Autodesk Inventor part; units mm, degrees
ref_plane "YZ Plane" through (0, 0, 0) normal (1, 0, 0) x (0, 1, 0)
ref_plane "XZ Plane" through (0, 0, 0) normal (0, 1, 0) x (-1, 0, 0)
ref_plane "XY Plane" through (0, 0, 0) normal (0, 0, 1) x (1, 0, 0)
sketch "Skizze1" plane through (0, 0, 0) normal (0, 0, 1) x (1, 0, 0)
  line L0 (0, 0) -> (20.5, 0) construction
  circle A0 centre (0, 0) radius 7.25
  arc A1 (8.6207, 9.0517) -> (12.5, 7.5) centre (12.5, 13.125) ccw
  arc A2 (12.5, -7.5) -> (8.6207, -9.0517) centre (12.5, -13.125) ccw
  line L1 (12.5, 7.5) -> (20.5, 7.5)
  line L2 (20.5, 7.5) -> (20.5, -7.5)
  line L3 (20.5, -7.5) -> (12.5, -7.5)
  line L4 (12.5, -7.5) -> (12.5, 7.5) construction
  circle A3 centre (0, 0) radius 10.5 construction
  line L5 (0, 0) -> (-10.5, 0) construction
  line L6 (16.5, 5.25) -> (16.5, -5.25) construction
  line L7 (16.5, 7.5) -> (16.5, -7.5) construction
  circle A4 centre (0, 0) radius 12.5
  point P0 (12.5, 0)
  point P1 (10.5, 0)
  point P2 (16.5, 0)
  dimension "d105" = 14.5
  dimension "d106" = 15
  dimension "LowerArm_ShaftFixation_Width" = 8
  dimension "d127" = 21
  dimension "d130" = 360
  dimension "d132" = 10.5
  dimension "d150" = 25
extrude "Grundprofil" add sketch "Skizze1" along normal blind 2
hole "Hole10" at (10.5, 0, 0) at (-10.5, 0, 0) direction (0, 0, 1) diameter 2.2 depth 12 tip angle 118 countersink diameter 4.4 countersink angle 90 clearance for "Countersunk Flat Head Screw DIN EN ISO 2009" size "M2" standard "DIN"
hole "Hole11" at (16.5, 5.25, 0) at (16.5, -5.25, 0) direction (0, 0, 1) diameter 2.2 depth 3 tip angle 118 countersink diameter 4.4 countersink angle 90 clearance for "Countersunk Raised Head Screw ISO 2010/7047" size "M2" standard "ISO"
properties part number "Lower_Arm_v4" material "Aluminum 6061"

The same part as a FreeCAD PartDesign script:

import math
import FreeCAD as App
import Part
import Sketcher
from FreeCAD import Vector

doc = App.newDocument("Part")
body = doc.addObject("PartDesign::Body", "Body")

sketch1 = body.newObject("Sketcher::SketchObject", "Sketch")
sketch1.AttachmentSupport = (doc.getObject("XY_Plane"), [""])
sketch1.MapMode = "FlatFace"
sketch1.addGeometry([
    Part.ArcOfCircle(Part.Circle(Vector(12.5, 13.125, 0), Vector(0, 0, 1), 5.62501), math.radians(-133.602573), math.radians(-90)),
    Part.ArcOfCircle(Part.Circle(Vector(0, 0, 0), Vector(0, 0, 1), 12.5), math.radians(46.39707), math.radians(313.60293)),
    Part.ArcOfCircle(Part.Circle(Vector(12.5, -13.125, 0), Vector(0, 0, 1), 5.625), math.radians(90), math.radians(133.602573)),
    Part.LineSegment(Vector(12.5, -7.5, 0), Vector(20.5, -7.5, 0)),
    Part.LineSegment(Vector(20.5, -7.5, 0), Vector(20.5, 7.5, 0)),
    Part.LineSegment(Vector(20.5, 7.5, 0), Vector(12.5, 7.5, 0)),
    Part.Circle(Vector(0, 0, 0), Vector(0, 0, 1), 7.25),
], False)
sketch1.addConstraint([
    Sketcher.Constraint("Tangent", 0, 1, 1, 1),
    Sketcher.Constraint("Tangent", 1, 2, 2, 2),
    Sketcher.Constraint("Tangent", 2, 1, 3, 1),
    Sketcher.Constraint("Coincident", 3, 2, 4, 1),
    Sketcher.Constraint("Coincident", 4, 2, 5, 1),
    Sketcher.Constraint("Tangent", 5, 2, 0, 2),
    Sketcher.Constraint("Horizontal", 3),
    Sketcher.Constraint("Vertical", 4),
    Sketcher.Constraint("Horizontal", 5),
    Sketcher.Constraint("Coincident", 1, 3, -1, 1),
    Sketcher.Constraint("Coincident", 6, 3, -1, 1),
    Sketcher.Constraint("Equal", 0, 2),
    Sketcher.Constraint("Vertical", 0, 3, 2, 3),
    Sketcher.Constraint("Diameter", 6, 14.5),
    Sketcher.Constraint("Radius", 1, 12.5),
    Sketcher.Constraint("DistanceX", 3, 1, 3, 2, 8.0),
    Sketcher.Constraint("DistanceY", 4, 1, 4, 2, 15.0),
    Sketcher.Constraint("Radius", 0, 5.625),
])
pad1 = body.newObject("PartDesign::Pad", "Pad")
pad1.Profile = sketch1
pad1.Length = 2

sketch2 = body.newObject("Sketcher::SketchObject", "Sketch001")
sketch2.AttachmentSupport = (doc.getObject("XY_Plane"), [""])
sketch2.MapMode = "FlatFace"
sketch2.addGeometry([
    Part.Circle(Vector(10.5, 0, 0), Vector(0, 0, 1), 1.1),
    Part.Circle(Vector(-10.5, 0, 0), Vector(0, 0, 1), 1.1),
], False)
sketch2.addConstraint([
    Sketcher.Constraint("Equal", 0, 1),
    Sketcher.Constraint("Symmetric", 0, 3, 1, 3, -1, 1),
    Sketcher.Constraint("PointOnObject", 0, 3, -1),
    Sketcher.Constraint("Diameter", 0, 2.2),
    Sketcher.Constraint("DistanceX", 1, 3, 0, 3, 21.0),
])
doc.recompute()
hole = body.newObject("PartDesign::Hole", "Hole")
hole.Profile = sketch2
hole.ThreadType = "None"
hole.Diameter = 2.2
hole.DepthType = "Dimension"
hole.Depth = 12
hole.DrillPoint = "Angled"
hole.DrillPointAngle = 118
hole.HoleCutType = "Countersink"
hole.HoleCutDiameter = 4.4
hole.HoleCutCountersinkAngle = 90
hole.Reversed = True

sketch3 = body.newObject("Sketcher::SketchObject", "Sketch002")
sketch3.AttachmentSupport = (doc.getObject("XY_Plane"), [""])
sketch3.MapMode = "FlatFace"
sketch3.addGeometry([
    Part.Circle(Vector(16.5, 5.25, 0), Vector(0, 0, 1), 1.1),
    Part.Circle(Vector(16.5, -5.25, 0), Vector(0, 0, 1), 1.1),
], False)
sketch3.addConstraint([
    Sketcher.Constraint("Equal", 0, 1),
    Sketcher.Constraint("Symmetric", 0, 3, 1, 3, -1),
    Sketcher.Constraint("Diameter", 0, 2.2),
    Sketcher.Constraint("DistanceX", -1, 1, 0, 3, 16.5),
    Sketcher.Constraint("DistanceY", 1, 3, 0, 3, 10.5),
])
doc.recompute()
hole2 = body.newObject("PartDesign::Hole", "Hole001")
hole2.Profile = sketch3
hole2.ThreadType = "None"
hole2.Diameter = 2.2
hole2.DepthType = "Dimension"
hole2.Depth = 3
hole2.DrillPoint = "Angled"
hole2.DrillPointAngle = 118
hole2.HoleCutType = "Countersink"
hole2.HoleCutDiameter = 4.4
hole2.HoleCutCountersinkAngle = 90
hole2.Reversed = True

doc.recompute()
